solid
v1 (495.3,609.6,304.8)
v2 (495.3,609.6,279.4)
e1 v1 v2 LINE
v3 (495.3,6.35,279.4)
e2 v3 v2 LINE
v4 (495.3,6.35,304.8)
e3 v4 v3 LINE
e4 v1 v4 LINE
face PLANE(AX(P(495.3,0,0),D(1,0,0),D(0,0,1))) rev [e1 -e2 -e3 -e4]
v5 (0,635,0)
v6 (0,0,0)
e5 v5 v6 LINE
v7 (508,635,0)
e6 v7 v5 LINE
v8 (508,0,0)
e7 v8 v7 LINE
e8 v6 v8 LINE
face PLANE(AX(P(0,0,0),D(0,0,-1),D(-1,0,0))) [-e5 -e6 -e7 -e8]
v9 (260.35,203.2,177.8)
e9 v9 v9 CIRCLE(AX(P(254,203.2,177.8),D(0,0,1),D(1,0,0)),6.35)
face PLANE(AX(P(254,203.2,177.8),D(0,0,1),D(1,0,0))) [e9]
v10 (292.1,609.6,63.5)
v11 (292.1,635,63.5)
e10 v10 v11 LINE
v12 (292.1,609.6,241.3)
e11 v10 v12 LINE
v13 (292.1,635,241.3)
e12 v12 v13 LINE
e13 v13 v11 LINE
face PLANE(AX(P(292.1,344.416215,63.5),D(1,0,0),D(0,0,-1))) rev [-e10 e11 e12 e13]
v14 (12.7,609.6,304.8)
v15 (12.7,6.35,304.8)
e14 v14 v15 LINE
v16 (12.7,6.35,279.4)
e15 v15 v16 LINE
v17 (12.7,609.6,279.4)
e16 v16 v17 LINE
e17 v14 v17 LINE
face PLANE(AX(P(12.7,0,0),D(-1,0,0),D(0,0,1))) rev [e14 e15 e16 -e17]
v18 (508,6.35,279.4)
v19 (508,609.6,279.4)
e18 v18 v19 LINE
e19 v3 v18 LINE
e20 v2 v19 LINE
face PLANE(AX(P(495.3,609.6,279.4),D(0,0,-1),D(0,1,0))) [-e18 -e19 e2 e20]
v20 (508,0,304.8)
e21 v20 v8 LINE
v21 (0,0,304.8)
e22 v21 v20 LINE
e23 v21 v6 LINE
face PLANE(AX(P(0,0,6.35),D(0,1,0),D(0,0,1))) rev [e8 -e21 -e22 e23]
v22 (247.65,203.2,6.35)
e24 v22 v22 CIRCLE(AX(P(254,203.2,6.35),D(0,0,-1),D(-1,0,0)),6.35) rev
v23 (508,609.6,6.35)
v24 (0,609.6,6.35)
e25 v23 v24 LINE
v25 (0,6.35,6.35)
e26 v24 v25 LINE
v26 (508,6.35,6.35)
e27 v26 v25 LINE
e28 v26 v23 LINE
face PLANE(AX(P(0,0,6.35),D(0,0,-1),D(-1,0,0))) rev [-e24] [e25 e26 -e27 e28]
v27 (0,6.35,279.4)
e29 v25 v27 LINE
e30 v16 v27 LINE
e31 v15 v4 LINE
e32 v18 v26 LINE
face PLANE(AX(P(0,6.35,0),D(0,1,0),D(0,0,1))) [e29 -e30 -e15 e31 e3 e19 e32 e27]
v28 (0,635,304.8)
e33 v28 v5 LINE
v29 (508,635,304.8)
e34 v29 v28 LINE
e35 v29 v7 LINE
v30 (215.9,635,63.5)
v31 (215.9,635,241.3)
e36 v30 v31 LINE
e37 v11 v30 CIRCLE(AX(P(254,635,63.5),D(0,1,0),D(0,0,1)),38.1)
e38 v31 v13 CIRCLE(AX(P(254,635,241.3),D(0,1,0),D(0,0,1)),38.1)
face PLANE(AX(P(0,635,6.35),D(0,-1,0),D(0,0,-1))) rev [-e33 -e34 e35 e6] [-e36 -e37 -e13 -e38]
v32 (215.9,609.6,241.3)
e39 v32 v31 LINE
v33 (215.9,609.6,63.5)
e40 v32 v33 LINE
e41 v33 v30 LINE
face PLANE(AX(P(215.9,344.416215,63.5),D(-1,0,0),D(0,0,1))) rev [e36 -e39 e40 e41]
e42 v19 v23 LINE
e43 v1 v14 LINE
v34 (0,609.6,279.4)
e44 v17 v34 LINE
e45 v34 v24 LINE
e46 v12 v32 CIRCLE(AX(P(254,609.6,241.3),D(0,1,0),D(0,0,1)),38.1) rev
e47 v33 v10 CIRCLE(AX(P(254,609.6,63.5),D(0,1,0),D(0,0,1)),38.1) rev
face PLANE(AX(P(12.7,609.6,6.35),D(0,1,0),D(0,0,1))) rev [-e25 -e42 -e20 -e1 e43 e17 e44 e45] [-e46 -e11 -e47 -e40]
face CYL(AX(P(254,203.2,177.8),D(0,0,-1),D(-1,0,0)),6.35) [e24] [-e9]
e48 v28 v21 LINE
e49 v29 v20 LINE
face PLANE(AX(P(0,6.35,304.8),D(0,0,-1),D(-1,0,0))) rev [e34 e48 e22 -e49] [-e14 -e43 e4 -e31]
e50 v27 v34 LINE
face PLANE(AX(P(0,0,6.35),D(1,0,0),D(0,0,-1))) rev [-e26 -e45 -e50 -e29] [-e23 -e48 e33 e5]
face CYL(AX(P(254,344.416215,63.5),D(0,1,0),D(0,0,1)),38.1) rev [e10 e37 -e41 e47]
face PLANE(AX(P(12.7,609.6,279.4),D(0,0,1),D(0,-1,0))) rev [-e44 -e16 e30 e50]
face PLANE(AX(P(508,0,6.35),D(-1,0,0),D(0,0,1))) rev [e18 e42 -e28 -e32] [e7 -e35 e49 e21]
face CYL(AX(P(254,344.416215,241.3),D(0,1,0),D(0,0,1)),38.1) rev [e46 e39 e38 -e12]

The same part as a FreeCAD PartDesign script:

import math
import FreeCAD as App
import Part
import Sketcher
Q = App.Units.Quantity

doc = App.newDocument("Part")
params = doc.addObject("Spreadsheet::Sheet", "Params")
for row, (alias, value) in enumerate([
    ("sketch1_width", "20 in"),
    ("sketch1_height", "25 in"),
    ("pad1_length", "0.25 in"),
    ("sketch2_diameter", "0.5 in"),
    ("pad2_length", "7 in"),
    ("sketch3_width", "20 in"),
    ("sketch3_height", "11.75 in"),
    ("pad3_length", "0.25 in"),
    ("sketch4_width", "1 in"),
    ("sketch4_width2", "24.75 in"),
    ("sketch4_height", "10.75 in"),
    ("pad4_length", "0.5 in"),
    ("sketch5_width", "1 in"),
    ("sketch5_height", "11.75 in"),
    ("pad5_length", "19 in"),
    ("sketch6_radius", "1.5 in"),
    ("sketch6_height", "7 in"),
    ("pocket1_length", "1 in"),
], start=1):
    params.set(f"A{row}", alias)
    params.set(f"B{row}", "=" + value)
    params.setAlias(f"B{row}", alias)

body = doc.addObject("PartDesign::Body", "Body")

sketch1 = body.newObject("Sketcher::SketchObject", "Sketch")
sketch1.AttachmentSupport = (doc.getObject("XY_Plane"), [""])
sketch1.MapMode = "FlatFace"
sketch1.addGeometry([
    Part.LineSegment(App.Vector(0, 635, 0), App.Vector(0, 0, 0)),
    Part.LineSegment(App.Vector(0, 0, 0), App.Vector(508, 0, 0)),
    Part.LineSegment(App.Vector(508, 0, 0), App.Vector(508, 635, 0)),
    Part.LineSegment(App.Vector(508, 635, 0), App.Vector(0, 635, 0)),
], False)
sketch1.addConstraint([
    Sketcher.Constraint("Coincident", 0, 2, 1, 1),
    Sketcher.Constraint("Coincident", 1, 2, 2, 1),
    Sketcher.Constraint("Coincident", 2, 2, 3, 1),
    Sketcher.Constraint("Coincident", 3, 2, 0, 1),
    Sketcher.Constraint("Vertical", 0),
    Sketcher.Constraint("Horizontal", 1),
    Sketcher.Constraint("Vertical", 2),
    Sketcher.Constraint("Horizontal", 3),
    Sketcher.Constraint("Coincident", 0, 2, -1, 1),
    Sketcher.Constraint("DistanceX", 1, 1, 1, 2, Q("20 in")),
    Sketcher.Constraint("DistanceY", 0, 2, 0, 1, Q("25 in")),
])
sketch1.setExpression("Constraints[9]", "Params.sketch1_width")
sketch1.setExpression("Constraints[10]", "Params.sketch1_height")
pad1 = body.newObject("PartDesign::Pad", "Pad")
pad1.Profile = sketch1
pad1.setExpression("Length", "Params.pad1_length")

sketch2 = body.newObject("Sketcher::SketchObject", "Sketch001")
sketch2.AttachmentSupport = (doc.getObject("XY_Plane"), [""])
sketch2.MapMode = "FlatFace"
sketch2.addGeometry(Part.Circle(App.Vector(254, 203, 0), App.Vector(0, 0, 1), 6), False)
sketch2.addConstraint([
    Sketcher.Constraint("Diameter", 0, Q("0.5 in")),
    Sketcher.Constraint("DistanceX", -1, 1, 0, 3, Q("10 in")),
    Sketcher.Constraint("DistanceY", -1, 1, 0, 3, Q("8 in")),
])
sketch2.setExpression("Constraints[0]", "Params.sketch2_diameter")
pad2 = body.newObject("PartDesign::Pad", "Pad001")
pad2.Profile = sketch2
pad2.setExpression("Length", "Params.pad2_length")

sketch3 = body.newObject("Sketcher::SketchObject", "Sketch002")
sketch3.AttachmentSupport = (doc.getObject("XZ_Plane"), [""])
sketch3.MapMode = "FlatFace"
sketch3.addGeometry([
    Part.LineSegment(App.Vector(0, 6, 0), App.Vector(0, 305, 0)),
    Part.LineSegment(App.Vector(0, 305, 0), App.Vector(508, 305, 0)),
    Part.LineSegment(App.Vector(508, 305, 0), App.Vector(508, 6, 0)),
    Part.LineSegment(App.Vector(508, 6, 0), App.Vector(0, 6, 0)),
], False)
sketch3.addConstraint([
    Sketcher.Constraint("Coincident", 0, 2, 1, 1),
    Sketcher.Constraint("Coincident", 1, 2, 2, 1),
    Sketcher.Constraint("Coincident", 2, 2, 3, 1),
    Sketcher.Constraint("Coincident", 3, 2, 0, 1),
    Sketcher.Constraint("Vertical", 0),
    Sketcher.Constraint("Horizontal", 1),
    Sketcher.Constraint("Vertical", 2),
    Sketcher.Constraint("Horizontal", 3),
    Sketcher.Constraint("PointOnObject", 0, 2, -2),
    Sketcher.Constraint("DistanceX", 1, 1, 1, 2, Q("20 in")),
    Sketcher.Constraint("DistanceY", -1, 1, 0, 2, Q("12 in")),
    Sketcher.Constraint("DistanceY", 0, 1, 0, 2, Q("11.75 in")),
])
sketch3.setExpression("Constraints[9]", "Params.sketch3_width")
sketch3.setExpression("Constraints[11]", "Params.sketch3_height")
pad3 = body.newObject("PartDesign::Pad", "Pad002")
pad3.Profile = sketch3
pad3.setExpression("Length", "Params.pad3_length")
pad3.Reversed = True

sketch4 = body.newObject("Sketcher::SketchObject", "Sketch003")
sketch4.AttachmentSupport = (doc.getObject("YZ_Plane"), [""])
sketch4.MapMode = "FlatFace"
sketch4.addGeometry([
    Part.LineSegment(App.Vector(635, 305, 0), App.Vector(6, 305, 0)),
    Part.LineSegment(App.Vector(6, 305, 0), App.Vector(6, 279, 0)),
    Part.LineSegment(App.Vector(6, 279, 0), App.Vector(610, 279, 0)),
    Part.LineSegment(App.Vector(610, 279, 0), App.Vector(610, 6, 0)),
    Part.LineSegment(App.Vector(610, 6, 0), App.Vector(635, 6, 0)),
    Part.LineSegment(App.Vector(635, 6, 0), App.Vector(635, 305, 0)),
], False)
sketch4.addConstraint([
    Sketcher.Constraint("Coincident", 0, 2, 1, 1),
    Sketcher.Constraint("Coincident", 1, 2, 2, 1),
    Sketcher.Constraint("Coincident", 2, 2, 3, 1),
    Sketcher.Constraint("Coincident", 3, 2, 4, 1),
    Sketcher.Constraint("Coincident", 4, 2, 5, 1),
    Sketcher.Constraint("Coincident", 5, 2, 0, 1),
    Sketcher.Constraint("Horizontal", 0),
    Sketcher.Constraint("Vertical", 1),
    Sketcher.Constraint("Horizontal", 2),
    Sketcher.Constraint("Vertical", 3),
    Sketcher.Constraint("Horizontal", 4),
    Sketcher.Constraint("Vertical", 5),
    Sketcher.Constraint("Equal", 4, 1),
    Sketcher.Constraint("DistanceX", 4, 1, 4, 2, Q("1 in")),
    Sketcher.Constraint("DistanceY", -1, 1, 0, 2, Q("12 in")),
    Sketcher.Constraint("DistanceX", -1, 1, 2, 2, Q("24 in")),
    Sketcher.Constraint("DistanceX", 0, 2, 0, 1, Q("24.75 in")),
    Sketcher.Constraint("DistanceY", 3, 2, 3, 1, Q("10.75 in")),
])
sketch4.setExpression("Constraints[13]", "Params.sketch4_width")
sketch4.setExpression("Constraints[16]", "Params.sketch4_width2")
sketch4.setExpression("Constraints[17]", "Params.sketch4_height")
pad4 = body.newObject("PartDesign::Pad", "Pad003")
pad4.Profile = sketch4
pad4.setExpression("Length", "Params.pad4_length")
doc.recompute()

datumplane = body.newObject("PartDesign::Plane", "DatumPlane")
datumplane.AttachmentSupport = (doc.getObject("YZ_Plane"), [""])
datumplane.MapMode = "FlatFace"
datumplane.AttachmentOffset = App.Placement(App.Vector(0, 0, 10 * 25.4), App.Rotation())
mirrored = body.newObject("PartDesign::Mirrored", "Mirrored")
mirrored.Originals = [pad4]
mirrored.MirrorPlane = (datumplane, [""])
body.Tip = mirrored

sketch5 = body.newObject("Sketcher::SketchObject", "Sketch004")
sketch5.AttachmentSupport = (doc.getObject("YZ_Plane"), [""])
sketch5.MapMode = "FlatFace"
sketch5.AttachmentOffset = App.Placement(App.Vector(0, 0, 0.5 * 25.4), App.Rotation())
sketch5.addGeometry([
    Part.LineSegment(App.Vector(635, 305, 0), App.Vector(610, 305, 0)),
    Part.LineSegment(App.Vector(610, 305, 0), App.Vector(610, 6, 0)),
    Part.LineSegment(App.Vector(610, 6, 0), App.Vector(635, 6, 0)),
    Part.LineSegment(App.Vector(635, 6, 0), App.Vector(635, 305, 0)),
], False)
sketch5.addConstraint([
    Sketcher.Constraint("Coincident", 0, 2, 1, 1),
    Sketcher.Constraint("Coincident", 1, 2, 2, 1),
    Sketcher.Constraint("Coincident", 2, 2, 3, 1),
    Sketcher.Constraint("Coincident", 3, 2, 0, 1),
    Sketcher.Constraint("Horizontal", 0),
    Sketcher.Constraint("Vertical", 1),
    Sketcher.Constraint("Horizontal", 2),
    Sketcher.Constraint("Vertical", 3),
    Sketcher.Constraint("DistanceX", 0, 2, 0, 1, Q("1 in")),
    Sketcher.Constraint("DistanceX", -1, 1, 0, 2, Q("24 in")),
    Sketcher.Constraint("DistanceY", -1, 1, 0, 2, Q("12 in")),
    Sketcher.Constraint("DistanceY", 1, 2, 1, 1, Q("11.75 in")),
])
sketch5.setExpression("Constraints[8]", "Params.sketch5_width")
sketch5.setExpression("Constraints[11]", "Params.sketch5_height")
pad5 = body.newObject("PartDesign::Pad", "Pad004")
pad5.Profile = sketch5
pad5.setExpression("Length", "Params.pad5_length")

sketch6 = body.newObject("Sketcher::SketchObject", "Sketch005")
sketch6.AttachmentSupport = (doc.getObject("XZ_Plane"), [""])
sketch6.MapMode = "FlatFace"
sketch6.AttachmentOffset = App.Placement(App.Vector(0, 0, -25 * 25.4), App.Rotation())
sketch6.addGeometry([
    Part.LineSegment(App.Vector(292, 241, 0), App.Vector(292, 64, 0)),
    Part.ArcOfCircle(Part.Circle(App.Vector(254, 64, 0), App.Vector(0, 0, 1), 38), math.radians(180), math.radians(360)),
    Part.LineSegment(App.Vector(216, 64, 0), App.Vector(216, 241, 0)),
    Part.ArcOfCircle(Part.Circle(App.Vector(254, 241, 0), App.Vector(0, 0, 1), 38), math.radians(0), math.radians(180)),
], False)
sketch6.addConstraint([
    Sketcher.Constraint("Tangent", 0, 2, 1, 2),
    Sketcher.Constraint("Tangent", 1, 1, 2, 1),
    Sketcher.Constraint("Tangent", 2, 2, 3, 2),
    Sketcher.Constraint("Tangent", 3, 1, 0, 1),
    Sketcher.Constraint("Vertical", 0),
    Sketcher.Constraint("Vertical", 2),
    Sketcher.Constraint("Radius", 1, Q("1.5 in")),
    Sketcher.Constraint("DistanceY", 0, 2, 0, 1, Q("7 in")),
    Sketcher.Constraint("DistanceX", -1, 1, 1, 3, Q("10 in")),
    Sketcher.Constraint("DistanceY", -1, 1, 1, 3, Q("2.5 in")),
])
sketch6.setExpression("Constraints[6]", "Params.sketch6_radius")
sketch6.setExpression("Constraints[7]", "Params.sketch6_height")
pocket1 = body.newObject("PartDesign::Pocket", "Pocket")
pocket1.Profile = sketch6
pocket1.setExpression("Length", "Params.pocket1_length")
pocket1.Reversed = True

doc.recompute()
